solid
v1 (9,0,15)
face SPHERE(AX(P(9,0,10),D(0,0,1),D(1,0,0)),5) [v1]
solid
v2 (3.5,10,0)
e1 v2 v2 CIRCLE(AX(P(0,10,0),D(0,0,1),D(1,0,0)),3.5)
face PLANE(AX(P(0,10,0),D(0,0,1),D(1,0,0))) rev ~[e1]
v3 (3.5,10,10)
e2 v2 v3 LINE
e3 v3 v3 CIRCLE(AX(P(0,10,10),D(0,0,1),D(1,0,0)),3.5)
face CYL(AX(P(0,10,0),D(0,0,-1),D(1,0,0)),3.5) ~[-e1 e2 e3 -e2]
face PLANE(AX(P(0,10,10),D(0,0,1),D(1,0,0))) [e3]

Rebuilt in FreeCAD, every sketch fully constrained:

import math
import FreeCAD as App
import Part
import Sketcher
from FreeCAD import Vector
Q = App.Units.Quantity

doc = App.newDocument("Part")
body = doc.addObject("PartDesign::Body", "Body")

# Sketch on XY plane
sketch1 = body.newObject("Sketcher::SketchObject", "Sketch")
sketch1.AttachmentSupport = (doc.getObject("XY_Plane"), [""])
sketch1.MapMode = "FlatFace"
sketch1.addGeometry(Part.Circle(Vector(0, 10, 0), Vector(0, 0, 1), 3.5), False)
sketch1.addConstraint([
    Sketcher.Constraint("PointOnObject", 0, 3, -2),
    Sketcher.Constraint("Diameter", 0, Q("7 mm")),
    Sketcher.Constraint("DistanceY", -1, 1, 0, 3, Q("10 mm")),
])
pad1 = body.newObject("PartDesign::Pad", "Pad")
pad1.Profile = sketch1
pad1.Length = 10
body2 = doc.addObject("PartDesign::Body", "Body001")

# Sketch on XZ plane
sketch2 = body2.newObject("Sketcher::SketchObject", "Sketch001")
sketch2.AttachmentSupport = (doc.getObject("XZ_Plane001"), [""])
sketch2.MapMode = "FlatFace"
sketch2.addGeometry([
    Part.ArcOfCircle(Part.Circle(Vector(9, 10, 0), Vector(0, 0, 1), 5), math.radians(-90), math.radians(90)),
    Part.LineSegment(Vector(9, 15, 0), Vector(9, 5, 0)),
], False)
sketch2.addGeometry(Part.LineSegment(Vector(9, 5, 0), Vector(9, 15, 0)), True)  # axis
sketch2.addConstraint([
    Sketcher.Constraint("Coincident", 0, 1, 1, 2),
    Sketcher.Constraint("Coincident", 1, 1, 0, 2),
    Sketcher.Constraint("Vertical", 1),
    Sketcher.Constraint("Vertical", 2),
    Sketcher.Constraint("Coincident", 2, 1, 0, 1),
    Sketcher.Constraint("Equal", 1, 2),
    Sketcher.Constraint("Radius", 0, Q("5 mm")),
    Sketcher.Constraint("DistanceX", -1, 1, 0, 3, Q("9 mm")),
    Sketcher.Constraint("DistanceY", -1, 1, 0, 3, Q("10 mm")),
    Sketcher.Constraint("DistanceX", -1, 1, 0, 1, Q("9 mm")),
])
revolution = body2.newObject("PartDesign::Revolution", "Revolution")
revolution.Profile = sketch2
revolution.ReferenceAxis = (sketch2, ["Axis0"])
revolution.Angle = 360

doc.recompute()
